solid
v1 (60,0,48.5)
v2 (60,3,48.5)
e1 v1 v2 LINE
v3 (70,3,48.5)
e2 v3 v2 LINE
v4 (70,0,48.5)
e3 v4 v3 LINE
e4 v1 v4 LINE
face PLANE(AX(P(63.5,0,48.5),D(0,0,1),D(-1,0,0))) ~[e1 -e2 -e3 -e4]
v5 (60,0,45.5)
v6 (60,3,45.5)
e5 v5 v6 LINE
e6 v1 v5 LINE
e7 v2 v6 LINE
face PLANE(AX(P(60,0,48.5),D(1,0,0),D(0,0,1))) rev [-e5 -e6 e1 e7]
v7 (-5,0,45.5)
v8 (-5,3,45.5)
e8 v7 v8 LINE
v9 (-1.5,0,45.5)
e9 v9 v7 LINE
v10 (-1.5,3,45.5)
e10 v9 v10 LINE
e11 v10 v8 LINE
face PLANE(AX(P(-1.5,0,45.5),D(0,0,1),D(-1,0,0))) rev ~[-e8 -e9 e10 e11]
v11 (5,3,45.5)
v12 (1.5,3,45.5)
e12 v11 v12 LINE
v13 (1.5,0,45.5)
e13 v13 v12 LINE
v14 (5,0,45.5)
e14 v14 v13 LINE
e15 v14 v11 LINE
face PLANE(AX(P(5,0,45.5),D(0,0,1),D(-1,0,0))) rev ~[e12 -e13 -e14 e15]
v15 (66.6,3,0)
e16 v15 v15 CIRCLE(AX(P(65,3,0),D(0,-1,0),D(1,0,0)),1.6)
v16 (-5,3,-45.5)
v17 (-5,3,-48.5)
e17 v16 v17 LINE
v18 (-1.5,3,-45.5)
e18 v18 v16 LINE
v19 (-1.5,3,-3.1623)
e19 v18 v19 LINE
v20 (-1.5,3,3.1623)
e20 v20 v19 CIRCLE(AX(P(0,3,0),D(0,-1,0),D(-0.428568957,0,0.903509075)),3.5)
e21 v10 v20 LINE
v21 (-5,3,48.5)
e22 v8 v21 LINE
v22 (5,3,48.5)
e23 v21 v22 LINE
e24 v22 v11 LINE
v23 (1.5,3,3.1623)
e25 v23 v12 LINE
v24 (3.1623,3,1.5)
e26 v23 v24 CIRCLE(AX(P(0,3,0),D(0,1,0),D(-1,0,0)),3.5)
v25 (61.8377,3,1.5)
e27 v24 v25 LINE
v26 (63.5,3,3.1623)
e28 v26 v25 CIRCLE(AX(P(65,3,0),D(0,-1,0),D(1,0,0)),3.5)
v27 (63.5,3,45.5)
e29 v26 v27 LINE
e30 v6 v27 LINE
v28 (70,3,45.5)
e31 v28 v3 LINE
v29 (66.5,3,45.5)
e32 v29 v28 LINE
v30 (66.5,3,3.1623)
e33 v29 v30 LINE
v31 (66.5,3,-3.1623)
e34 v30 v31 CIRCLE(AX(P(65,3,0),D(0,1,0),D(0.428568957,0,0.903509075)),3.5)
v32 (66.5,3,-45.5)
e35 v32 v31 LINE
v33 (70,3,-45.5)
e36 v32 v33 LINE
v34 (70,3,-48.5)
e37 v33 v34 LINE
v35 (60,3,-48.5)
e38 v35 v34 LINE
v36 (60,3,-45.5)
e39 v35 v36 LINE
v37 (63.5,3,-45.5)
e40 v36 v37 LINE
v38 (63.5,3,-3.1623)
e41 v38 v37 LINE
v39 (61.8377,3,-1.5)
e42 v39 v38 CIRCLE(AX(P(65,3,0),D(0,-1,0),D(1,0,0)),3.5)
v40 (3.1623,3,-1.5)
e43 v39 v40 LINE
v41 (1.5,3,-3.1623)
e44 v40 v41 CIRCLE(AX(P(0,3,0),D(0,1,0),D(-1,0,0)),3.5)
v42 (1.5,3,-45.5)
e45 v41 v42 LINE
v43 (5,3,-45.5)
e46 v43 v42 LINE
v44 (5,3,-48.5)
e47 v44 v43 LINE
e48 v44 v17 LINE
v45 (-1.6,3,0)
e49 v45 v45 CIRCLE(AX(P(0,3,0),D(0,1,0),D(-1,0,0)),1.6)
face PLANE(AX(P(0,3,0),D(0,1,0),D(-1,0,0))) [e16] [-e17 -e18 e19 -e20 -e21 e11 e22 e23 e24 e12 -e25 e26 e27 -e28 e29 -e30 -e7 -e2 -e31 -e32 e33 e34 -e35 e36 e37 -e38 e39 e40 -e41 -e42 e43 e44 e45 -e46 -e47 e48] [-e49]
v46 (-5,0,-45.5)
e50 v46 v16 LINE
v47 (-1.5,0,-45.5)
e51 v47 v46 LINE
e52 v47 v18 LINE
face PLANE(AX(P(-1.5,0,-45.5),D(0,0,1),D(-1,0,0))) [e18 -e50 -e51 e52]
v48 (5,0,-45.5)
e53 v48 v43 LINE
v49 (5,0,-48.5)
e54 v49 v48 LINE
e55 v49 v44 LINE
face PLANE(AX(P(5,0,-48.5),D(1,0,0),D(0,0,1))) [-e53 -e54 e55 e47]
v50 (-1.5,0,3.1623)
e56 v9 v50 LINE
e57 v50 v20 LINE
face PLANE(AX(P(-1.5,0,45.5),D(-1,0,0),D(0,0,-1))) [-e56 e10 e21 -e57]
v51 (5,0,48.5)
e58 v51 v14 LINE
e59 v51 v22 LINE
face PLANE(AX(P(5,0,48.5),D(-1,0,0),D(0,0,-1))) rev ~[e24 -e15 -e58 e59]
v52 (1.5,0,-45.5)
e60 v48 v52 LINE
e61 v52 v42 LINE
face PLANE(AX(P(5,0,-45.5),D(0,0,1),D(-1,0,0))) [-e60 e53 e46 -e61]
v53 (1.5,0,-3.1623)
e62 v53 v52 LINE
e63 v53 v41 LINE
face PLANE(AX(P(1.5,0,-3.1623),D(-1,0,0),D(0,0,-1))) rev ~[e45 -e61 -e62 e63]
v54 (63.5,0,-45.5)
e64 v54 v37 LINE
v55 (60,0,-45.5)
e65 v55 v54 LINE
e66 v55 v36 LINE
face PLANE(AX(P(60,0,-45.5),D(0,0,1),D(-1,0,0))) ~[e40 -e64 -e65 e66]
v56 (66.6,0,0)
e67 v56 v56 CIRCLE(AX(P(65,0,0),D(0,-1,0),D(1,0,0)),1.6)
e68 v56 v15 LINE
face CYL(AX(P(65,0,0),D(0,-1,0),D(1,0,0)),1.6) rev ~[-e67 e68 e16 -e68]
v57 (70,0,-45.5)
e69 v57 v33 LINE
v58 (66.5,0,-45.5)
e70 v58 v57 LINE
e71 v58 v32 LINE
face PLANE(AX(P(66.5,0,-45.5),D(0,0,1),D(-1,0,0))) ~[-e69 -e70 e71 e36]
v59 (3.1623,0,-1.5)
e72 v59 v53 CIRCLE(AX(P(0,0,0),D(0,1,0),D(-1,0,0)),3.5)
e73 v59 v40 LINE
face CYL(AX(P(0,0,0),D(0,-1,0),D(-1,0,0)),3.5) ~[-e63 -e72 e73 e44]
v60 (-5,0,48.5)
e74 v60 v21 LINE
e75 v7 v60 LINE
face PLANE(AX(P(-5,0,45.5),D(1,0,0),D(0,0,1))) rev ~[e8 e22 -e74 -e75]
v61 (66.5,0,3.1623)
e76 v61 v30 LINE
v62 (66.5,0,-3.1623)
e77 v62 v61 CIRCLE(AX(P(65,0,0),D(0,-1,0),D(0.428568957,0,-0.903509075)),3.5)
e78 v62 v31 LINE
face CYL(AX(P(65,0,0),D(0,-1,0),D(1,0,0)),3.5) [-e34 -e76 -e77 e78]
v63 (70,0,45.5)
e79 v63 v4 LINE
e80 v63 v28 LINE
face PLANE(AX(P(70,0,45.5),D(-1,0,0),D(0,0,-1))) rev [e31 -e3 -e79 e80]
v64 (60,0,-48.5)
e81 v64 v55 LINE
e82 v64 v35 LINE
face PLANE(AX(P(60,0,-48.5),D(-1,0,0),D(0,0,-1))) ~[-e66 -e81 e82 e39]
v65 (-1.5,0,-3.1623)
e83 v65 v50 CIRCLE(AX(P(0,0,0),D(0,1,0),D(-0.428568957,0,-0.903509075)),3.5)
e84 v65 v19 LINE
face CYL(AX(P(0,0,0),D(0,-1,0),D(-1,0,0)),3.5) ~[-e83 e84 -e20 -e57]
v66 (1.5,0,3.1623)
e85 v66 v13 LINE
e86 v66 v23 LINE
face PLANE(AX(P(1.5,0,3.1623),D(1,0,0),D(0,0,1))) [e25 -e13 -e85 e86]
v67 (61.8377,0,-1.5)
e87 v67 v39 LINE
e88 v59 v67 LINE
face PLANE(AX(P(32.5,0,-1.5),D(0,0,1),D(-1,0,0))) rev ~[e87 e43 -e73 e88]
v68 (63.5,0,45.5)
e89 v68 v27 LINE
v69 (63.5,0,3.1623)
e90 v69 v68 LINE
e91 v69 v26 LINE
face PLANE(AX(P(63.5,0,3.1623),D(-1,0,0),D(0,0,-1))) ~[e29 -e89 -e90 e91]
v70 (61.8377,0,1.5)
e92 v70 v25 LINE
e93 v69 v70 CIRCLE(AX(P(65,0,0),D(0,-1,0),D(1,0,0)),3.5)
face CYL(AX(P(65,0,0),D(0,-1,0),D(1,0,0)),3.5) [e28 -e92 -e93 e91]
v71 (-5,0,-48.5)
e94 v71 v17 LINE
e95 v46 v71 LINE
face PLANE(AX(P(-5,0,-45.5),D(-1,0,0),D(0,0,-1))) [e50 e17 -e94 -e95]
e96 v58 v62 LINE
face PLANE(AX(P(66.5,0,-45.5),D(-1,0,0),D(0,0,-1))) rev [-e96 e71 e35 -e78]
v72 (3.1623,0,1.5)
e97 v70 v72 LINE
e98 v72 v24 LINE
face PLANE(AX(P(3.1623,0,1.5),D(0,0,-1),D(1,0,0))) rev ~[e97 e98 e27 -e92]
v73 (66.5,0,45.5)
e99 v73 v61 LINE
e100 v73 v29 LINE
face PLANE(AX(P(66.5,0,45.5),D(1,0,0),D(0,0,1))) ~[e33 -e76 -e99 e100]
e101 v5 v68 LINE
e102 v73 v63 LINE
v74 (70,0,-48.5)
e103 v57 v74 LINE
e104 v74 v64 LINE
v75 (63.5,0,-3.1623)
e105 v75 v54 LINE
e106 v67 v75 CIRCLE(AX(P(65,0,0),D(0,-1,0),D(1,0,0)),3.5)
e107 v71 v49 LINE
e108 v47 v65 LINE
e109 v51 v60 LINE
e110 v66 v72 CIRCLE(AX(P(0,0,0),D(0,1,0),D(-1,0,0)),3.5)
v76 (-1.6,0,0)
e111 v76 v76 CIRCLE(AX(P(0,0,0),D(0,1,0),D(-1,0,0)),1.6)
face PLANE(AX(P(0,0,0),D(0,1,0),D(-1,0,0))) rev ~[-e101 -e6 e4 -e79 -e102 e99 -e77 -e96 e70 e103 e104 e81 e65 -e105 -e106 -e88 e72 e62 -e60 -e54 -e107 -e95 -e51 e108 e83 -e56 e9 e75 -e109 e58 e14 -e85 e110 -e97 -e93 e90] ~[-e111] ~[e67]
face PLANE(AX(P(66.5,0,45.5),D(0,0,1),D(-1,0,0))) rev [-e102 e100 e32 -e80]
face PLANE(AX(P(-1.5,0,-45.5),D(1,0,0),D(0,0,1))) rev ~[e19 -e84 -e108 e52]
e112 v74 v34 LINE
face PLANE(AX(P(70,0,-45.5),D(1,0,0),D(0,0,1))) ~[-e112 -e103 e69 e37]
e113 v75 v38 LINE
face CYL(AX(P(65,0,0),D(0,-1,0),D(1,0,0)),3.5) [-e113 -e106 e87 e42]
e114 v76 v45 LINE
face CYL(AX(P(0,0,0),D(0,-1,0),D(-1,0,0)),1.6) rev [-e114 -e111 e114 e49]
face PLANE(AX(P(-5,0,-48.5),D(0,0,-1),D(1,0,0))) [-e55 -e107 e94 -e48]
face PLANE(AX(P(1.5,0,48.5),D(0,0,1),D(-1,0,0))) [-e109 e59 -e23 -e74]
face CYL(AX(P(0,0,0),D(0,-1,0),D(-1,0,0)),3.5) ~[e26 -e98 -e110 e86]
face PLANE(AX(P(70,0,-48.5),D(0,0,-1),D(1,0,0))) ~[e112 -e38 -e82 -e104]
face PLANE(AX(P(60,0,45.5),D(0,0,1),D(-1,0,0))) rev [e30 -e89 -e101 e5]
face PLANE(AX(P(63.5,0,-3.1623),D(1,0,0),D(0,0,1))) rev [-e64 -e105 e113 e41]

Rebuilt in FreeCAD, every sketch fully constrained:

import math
import FreeCAD as App
import Part
import Sketcher

V = App.Vector
Q = App.Units.Quantity

doc = App.newDocument("Part")
body = doc.addObject("PartDesign::Body", "Body")

# Sketch on XZ plane
sketch1 = body.newObject("Sketcher::SketchObject", "Sketch")
sketch1.AttachmentSupport = (doc.getObject("XZ_Plane"), [""])
sketch1.MapMode = "FlatFace"
sketch1.addGeometry(Part.ArcOfCircle(Part.Circle(V(0, 0, 0), V(0, 0, 1), 3.5), math.radians(115), math.radians(245)), False)
sketch1.addGeometry(Part.LineSegment(V(-1.5, 3.2, 0), V(-1.5, 45.5, 0)), False)
sketch1.addGeometry(Part.LineSegment(V(-1.5, 45.5, 0), V(-5, 45.5, 0)), False)
sketch1.addGeometry(Part.LineSegment(V(-5, 45.5, 0), V(-5, 48.5, 0)), False)
sketch1.addGeometry(Part.LineSegment(V(-5, 48.5, 0), V(5, 48.5, 0)), False)
sketch1.addGeometry(Part.LineSegment(V(5, 48.5, 0), V(5, 45.5, 0)), False)
sketch1.addGeometry(Part.LineSegment(V(5, 45.5, 0), V(1.5, 45.5, 0)), False)
sketch1.addGeometry(Part.LineSegment(V(1.5, 45.5, 0), V(1.5, 3.2, 0)), False)
sketch1.addGeometry(Part.ArcOfCircle(Part.Circle(V(0, 0, 0), V(0, 0, 1), 3.5), math.radians(25), math.radians(65)), False)
sketch1.addGeometry(Part.LineSegment(V(3.2, 1.5, 0), V(32.5, 1.5, 0)), False)
sketch1.addGeometry(Part.LineSegment(V(32.5, 1.5, 0), V(32.5, -1.5, 0)), False)
sketch1.addGeometry(Part.LineSegment(V(32.5, -1.5, 0), V(3.2, -1.5, 0)), False)
sketch1.addGeometry(Part.ArcOfCircle(Part.Circle(V(0, 0, 0), V(0, 0, 1), 3.5), math.radians(-65), math.radians(-25)), False)
sketch1.addGeometry(Part.LineSegment(V(1.5, -3.2, 0), V(1.5, -45.5, 0)), False)
sketch1.addGeometry(Part.LineSegment(V(1.5, -45.5, 0), V(5, -45.5, 0)), False)
sketch1.addGeometry(Part.LineSegment(V(5, -45.5, 0), V(5, -48.5, 0)), False)
sketch1.addGeometry(Part.LineSegment(V(5, -48.5, 0), V(-5, -48.5, 0)), False)
sketch1.addGeometry(Part.LineSegment(V(-5, -48.5, 0), V(-5, -45.5, 0)), False)
sketch1.addGeometry(Part.LineSegment(V(-5, -45.5, 0), V(-1.5, -45.5, 0)), False)
sketch1.addGeometry(Part.LineSegment(V(-1.5, -45.5, 0), V(-1.5, -3.2, 0)), False)
sketch1.addGeometry(Part.Circle(V(0, 0, 0), V(0, 0, 1), 1.6), False)
sketch1.addConstraint(Sketcher.Constraint("Coincident", 0, 1, 1, 1))
sketch1.addConstraint(Sketcher.Constraint("Coincident", 1, 2, 2, 1))
sketch1.addConstraint(Sketcher.Constraint("Coincident", 2, 2, 3, 1))
sketch1.addConstraint(Sketcher.Constraint("Coincident", 3, 2, 4, 1))
sketch1.addConstraint(Sketcher.Constraint("Coincident", 4, 2, 5, 1))
sketch1.addConstraint(Sketcher.Constraint("Coincident", 5, 2, 6, 1))
sketch1.addConstraint(Sketcher.Constraint("Coincident", 6, 2, 7, 1))
sketch1.addConstraint(Sketcher.Constraint("Coincident", 7, 2, 8, 2))
sketch1.addConstraint(Sketcher.Constraint("Coincident", 8, 1, 9, 1))
sketch1.addConstraint(Sketcher.Constraint("Coincident", 9, 2, 10, 1))
sketch1.addConstraint(Sketcher.Constraint("Coincident", 10, 2, 11, 1))
sketch1.addConstraint(Sketcher.Constraint("Coincident", 11, 2, 12, 2))
sketch1.addConstraint(Sketcher.Constraint("Coincident", 12, 1, 13, 1))
sketch1.addConstraint(Sketcher.Constraint("Coincident", 13, 2, 14, 1))
sketch1.addConstraint(Sketcher.Constraint("Coincident", 14, 2, 15, 1))
sketch1.addConstraint(Sketcher.Constraint("Coincident", 15, 2, 16, 1))
sketch1.addConstraint(Sketcher.Constraint("Coincident", 16, 2, 17, 1))
sketch1.addConstraint(Sketcher.Constraint("Coincident", 17, 2, 18, 1))
sketch1.addConstraint(Sketcher.Constraint("Coincident", 18, 2, 19, 1))
sketch1.addConstraint(Sketcher.Constraint("Coincident", 19, 2, 0, 2))
sketch1.addConstraint(Sketcher.Constraint("Vertical", 1))
sketch1.addConstraint(Sketcher.Constraint("Horizontal", 2))
sketch1.addConstraint(Sketcher.Constraint("Vertical", 3))
sketch1.addConstraint(Sketcher.Constraint("Horizontal", 4))
sketch1.addConstraint(Sketcher.Constraint("Vertical", 5))
sketch1.addConstraint(Sketcher.Constraint("Horizontal", 6))
sketch1.addConstraint(Sketcher.Constraint("Vertical", 7))
sketch1.addConstraint(Sketcher.Constraint("Horizontal", 9))
sketch1.addConstraint(Sketcher.Constraint("Vertical", 10))
sketch1.addConstraint(Sketcher.Constraint("Horizontal", 11))
sketch1.addConstraint(Sketcher.Constraint("Vertical", 13))
sketch1.addConstraint(Sketcher.Constraint("Horizontal", 14))
sketch1.addConstraint(Sketcher.Constraint("Vertical", 15))
sketch1.addConstraint(Sketcher.Constraint("Horizontal", 16))
sketch1.addConstraint(Sketcher.Constraint("Vertical", 17))
sketch1.addConstraint(Sketcher.Constraint("Horizontal", 18))
sketch1.addConstraint(Sketcher.Constraint("Vertical", 19))
sketch1.addConstraint(Sketcher.Constraint("Coincident", 0, 3, -1, 1))
sketch1.addConstraint(Sketcher.Constraint("Coincident", 8, 3, -1, 1))
sketch1.addConstraint(Sketcher.Constraint("Coincident", 12, 3, -1, 1))
sketch1.addConstraint(Sketcher.Constraint("Coincident", 20, 3, -1, 1))
sketch1.addConstraint(Sketcher.Constraint("Equal", 0, 8))
sketch1.addConstraint(Sketcher.Constraint("Equal", 8, 12))
sketch1.addConstraint(Sketcher.Constraint("Symmetric", 1, 2, 13, 2, -1, 1))
sketch1.addConstraint(Sketcher.Constraint("Symmetric", 3, 2, 15, 2, -1, 1))
sketch1.addConstraint(Sketcher.Constraint("Symmetric", 5, 2, 17, 2, -1, 1))
sketch1.addConstraint(Sketcher.Constraint("Symmetric", 2, 2, 5, 2, -2))
sketch1.addConstraint(Sketcher.Constraint("Horizontal", 0, 1, 7, 2))
sketch1.addConstraint(Sketcher.Constraint("Horizontal", 12, 1, 19, 2))
sketch1.addConstraint(Sketcher.Constraint("Vertical", 8, 1, 11, 2))
sketch1.addConstraint(Sketcher.Constraint("Equal", 5, 10))
sketch1.addConstraint(Sketcher.Constraint("Diameter", 20, Q("3.2 mm")))
sketch1.addConstraint(Sketcher.Constraint("Radius", 0, Q("3.5 mm")))
sketch1.addConstraint(Sketcher.Constraint("DistanceX", 4, 1, 4, 2, Q("10 mm")))
sketch1.addConstraint(Sketcher.Constraint("DistanceY", 3, 1, 3, 2, Q("3 mm")))
sketch1.addConstraint(Sketcher.Constraint("DistanceX", 1, 2, 6, 2, Q("3 mm")))
sketch1.addConstraint(Sketcher.Constraint("DistanceY", -1, 1, 3, 2, Q("48.5 mm")))
sketch1.addConstraint(Sketcher.Constraint("DistanceX", -1, 1, 9, 2, Q("32.5 mm")))
pad1 = body.newObject("PartDesign::Pad", "Pad")
pad1.Profile = sketch1
pad1.Length = 3
pad1.Reversed = True
doc.recompute()

datumplane = body.newObject("PartDesign::Plane", "DatumPlane")
datumplane.AttachmentSupport = (doc.getObject("YZ_Plane"), [""])
datumplane.MapMode = "FlatFace"
datumplane.AttachmentOffset = App.Placement(V(0, 0, 32.5), App.Rotation())
mirrored = body.newObject("PartDesign::Mirrored", "Mirrored")
mirrored.TransformMode = "Transform body"
mirrored.MirrorPlane = (datumplane, [""])
body.Tip = mirrored

doc.recompute()
